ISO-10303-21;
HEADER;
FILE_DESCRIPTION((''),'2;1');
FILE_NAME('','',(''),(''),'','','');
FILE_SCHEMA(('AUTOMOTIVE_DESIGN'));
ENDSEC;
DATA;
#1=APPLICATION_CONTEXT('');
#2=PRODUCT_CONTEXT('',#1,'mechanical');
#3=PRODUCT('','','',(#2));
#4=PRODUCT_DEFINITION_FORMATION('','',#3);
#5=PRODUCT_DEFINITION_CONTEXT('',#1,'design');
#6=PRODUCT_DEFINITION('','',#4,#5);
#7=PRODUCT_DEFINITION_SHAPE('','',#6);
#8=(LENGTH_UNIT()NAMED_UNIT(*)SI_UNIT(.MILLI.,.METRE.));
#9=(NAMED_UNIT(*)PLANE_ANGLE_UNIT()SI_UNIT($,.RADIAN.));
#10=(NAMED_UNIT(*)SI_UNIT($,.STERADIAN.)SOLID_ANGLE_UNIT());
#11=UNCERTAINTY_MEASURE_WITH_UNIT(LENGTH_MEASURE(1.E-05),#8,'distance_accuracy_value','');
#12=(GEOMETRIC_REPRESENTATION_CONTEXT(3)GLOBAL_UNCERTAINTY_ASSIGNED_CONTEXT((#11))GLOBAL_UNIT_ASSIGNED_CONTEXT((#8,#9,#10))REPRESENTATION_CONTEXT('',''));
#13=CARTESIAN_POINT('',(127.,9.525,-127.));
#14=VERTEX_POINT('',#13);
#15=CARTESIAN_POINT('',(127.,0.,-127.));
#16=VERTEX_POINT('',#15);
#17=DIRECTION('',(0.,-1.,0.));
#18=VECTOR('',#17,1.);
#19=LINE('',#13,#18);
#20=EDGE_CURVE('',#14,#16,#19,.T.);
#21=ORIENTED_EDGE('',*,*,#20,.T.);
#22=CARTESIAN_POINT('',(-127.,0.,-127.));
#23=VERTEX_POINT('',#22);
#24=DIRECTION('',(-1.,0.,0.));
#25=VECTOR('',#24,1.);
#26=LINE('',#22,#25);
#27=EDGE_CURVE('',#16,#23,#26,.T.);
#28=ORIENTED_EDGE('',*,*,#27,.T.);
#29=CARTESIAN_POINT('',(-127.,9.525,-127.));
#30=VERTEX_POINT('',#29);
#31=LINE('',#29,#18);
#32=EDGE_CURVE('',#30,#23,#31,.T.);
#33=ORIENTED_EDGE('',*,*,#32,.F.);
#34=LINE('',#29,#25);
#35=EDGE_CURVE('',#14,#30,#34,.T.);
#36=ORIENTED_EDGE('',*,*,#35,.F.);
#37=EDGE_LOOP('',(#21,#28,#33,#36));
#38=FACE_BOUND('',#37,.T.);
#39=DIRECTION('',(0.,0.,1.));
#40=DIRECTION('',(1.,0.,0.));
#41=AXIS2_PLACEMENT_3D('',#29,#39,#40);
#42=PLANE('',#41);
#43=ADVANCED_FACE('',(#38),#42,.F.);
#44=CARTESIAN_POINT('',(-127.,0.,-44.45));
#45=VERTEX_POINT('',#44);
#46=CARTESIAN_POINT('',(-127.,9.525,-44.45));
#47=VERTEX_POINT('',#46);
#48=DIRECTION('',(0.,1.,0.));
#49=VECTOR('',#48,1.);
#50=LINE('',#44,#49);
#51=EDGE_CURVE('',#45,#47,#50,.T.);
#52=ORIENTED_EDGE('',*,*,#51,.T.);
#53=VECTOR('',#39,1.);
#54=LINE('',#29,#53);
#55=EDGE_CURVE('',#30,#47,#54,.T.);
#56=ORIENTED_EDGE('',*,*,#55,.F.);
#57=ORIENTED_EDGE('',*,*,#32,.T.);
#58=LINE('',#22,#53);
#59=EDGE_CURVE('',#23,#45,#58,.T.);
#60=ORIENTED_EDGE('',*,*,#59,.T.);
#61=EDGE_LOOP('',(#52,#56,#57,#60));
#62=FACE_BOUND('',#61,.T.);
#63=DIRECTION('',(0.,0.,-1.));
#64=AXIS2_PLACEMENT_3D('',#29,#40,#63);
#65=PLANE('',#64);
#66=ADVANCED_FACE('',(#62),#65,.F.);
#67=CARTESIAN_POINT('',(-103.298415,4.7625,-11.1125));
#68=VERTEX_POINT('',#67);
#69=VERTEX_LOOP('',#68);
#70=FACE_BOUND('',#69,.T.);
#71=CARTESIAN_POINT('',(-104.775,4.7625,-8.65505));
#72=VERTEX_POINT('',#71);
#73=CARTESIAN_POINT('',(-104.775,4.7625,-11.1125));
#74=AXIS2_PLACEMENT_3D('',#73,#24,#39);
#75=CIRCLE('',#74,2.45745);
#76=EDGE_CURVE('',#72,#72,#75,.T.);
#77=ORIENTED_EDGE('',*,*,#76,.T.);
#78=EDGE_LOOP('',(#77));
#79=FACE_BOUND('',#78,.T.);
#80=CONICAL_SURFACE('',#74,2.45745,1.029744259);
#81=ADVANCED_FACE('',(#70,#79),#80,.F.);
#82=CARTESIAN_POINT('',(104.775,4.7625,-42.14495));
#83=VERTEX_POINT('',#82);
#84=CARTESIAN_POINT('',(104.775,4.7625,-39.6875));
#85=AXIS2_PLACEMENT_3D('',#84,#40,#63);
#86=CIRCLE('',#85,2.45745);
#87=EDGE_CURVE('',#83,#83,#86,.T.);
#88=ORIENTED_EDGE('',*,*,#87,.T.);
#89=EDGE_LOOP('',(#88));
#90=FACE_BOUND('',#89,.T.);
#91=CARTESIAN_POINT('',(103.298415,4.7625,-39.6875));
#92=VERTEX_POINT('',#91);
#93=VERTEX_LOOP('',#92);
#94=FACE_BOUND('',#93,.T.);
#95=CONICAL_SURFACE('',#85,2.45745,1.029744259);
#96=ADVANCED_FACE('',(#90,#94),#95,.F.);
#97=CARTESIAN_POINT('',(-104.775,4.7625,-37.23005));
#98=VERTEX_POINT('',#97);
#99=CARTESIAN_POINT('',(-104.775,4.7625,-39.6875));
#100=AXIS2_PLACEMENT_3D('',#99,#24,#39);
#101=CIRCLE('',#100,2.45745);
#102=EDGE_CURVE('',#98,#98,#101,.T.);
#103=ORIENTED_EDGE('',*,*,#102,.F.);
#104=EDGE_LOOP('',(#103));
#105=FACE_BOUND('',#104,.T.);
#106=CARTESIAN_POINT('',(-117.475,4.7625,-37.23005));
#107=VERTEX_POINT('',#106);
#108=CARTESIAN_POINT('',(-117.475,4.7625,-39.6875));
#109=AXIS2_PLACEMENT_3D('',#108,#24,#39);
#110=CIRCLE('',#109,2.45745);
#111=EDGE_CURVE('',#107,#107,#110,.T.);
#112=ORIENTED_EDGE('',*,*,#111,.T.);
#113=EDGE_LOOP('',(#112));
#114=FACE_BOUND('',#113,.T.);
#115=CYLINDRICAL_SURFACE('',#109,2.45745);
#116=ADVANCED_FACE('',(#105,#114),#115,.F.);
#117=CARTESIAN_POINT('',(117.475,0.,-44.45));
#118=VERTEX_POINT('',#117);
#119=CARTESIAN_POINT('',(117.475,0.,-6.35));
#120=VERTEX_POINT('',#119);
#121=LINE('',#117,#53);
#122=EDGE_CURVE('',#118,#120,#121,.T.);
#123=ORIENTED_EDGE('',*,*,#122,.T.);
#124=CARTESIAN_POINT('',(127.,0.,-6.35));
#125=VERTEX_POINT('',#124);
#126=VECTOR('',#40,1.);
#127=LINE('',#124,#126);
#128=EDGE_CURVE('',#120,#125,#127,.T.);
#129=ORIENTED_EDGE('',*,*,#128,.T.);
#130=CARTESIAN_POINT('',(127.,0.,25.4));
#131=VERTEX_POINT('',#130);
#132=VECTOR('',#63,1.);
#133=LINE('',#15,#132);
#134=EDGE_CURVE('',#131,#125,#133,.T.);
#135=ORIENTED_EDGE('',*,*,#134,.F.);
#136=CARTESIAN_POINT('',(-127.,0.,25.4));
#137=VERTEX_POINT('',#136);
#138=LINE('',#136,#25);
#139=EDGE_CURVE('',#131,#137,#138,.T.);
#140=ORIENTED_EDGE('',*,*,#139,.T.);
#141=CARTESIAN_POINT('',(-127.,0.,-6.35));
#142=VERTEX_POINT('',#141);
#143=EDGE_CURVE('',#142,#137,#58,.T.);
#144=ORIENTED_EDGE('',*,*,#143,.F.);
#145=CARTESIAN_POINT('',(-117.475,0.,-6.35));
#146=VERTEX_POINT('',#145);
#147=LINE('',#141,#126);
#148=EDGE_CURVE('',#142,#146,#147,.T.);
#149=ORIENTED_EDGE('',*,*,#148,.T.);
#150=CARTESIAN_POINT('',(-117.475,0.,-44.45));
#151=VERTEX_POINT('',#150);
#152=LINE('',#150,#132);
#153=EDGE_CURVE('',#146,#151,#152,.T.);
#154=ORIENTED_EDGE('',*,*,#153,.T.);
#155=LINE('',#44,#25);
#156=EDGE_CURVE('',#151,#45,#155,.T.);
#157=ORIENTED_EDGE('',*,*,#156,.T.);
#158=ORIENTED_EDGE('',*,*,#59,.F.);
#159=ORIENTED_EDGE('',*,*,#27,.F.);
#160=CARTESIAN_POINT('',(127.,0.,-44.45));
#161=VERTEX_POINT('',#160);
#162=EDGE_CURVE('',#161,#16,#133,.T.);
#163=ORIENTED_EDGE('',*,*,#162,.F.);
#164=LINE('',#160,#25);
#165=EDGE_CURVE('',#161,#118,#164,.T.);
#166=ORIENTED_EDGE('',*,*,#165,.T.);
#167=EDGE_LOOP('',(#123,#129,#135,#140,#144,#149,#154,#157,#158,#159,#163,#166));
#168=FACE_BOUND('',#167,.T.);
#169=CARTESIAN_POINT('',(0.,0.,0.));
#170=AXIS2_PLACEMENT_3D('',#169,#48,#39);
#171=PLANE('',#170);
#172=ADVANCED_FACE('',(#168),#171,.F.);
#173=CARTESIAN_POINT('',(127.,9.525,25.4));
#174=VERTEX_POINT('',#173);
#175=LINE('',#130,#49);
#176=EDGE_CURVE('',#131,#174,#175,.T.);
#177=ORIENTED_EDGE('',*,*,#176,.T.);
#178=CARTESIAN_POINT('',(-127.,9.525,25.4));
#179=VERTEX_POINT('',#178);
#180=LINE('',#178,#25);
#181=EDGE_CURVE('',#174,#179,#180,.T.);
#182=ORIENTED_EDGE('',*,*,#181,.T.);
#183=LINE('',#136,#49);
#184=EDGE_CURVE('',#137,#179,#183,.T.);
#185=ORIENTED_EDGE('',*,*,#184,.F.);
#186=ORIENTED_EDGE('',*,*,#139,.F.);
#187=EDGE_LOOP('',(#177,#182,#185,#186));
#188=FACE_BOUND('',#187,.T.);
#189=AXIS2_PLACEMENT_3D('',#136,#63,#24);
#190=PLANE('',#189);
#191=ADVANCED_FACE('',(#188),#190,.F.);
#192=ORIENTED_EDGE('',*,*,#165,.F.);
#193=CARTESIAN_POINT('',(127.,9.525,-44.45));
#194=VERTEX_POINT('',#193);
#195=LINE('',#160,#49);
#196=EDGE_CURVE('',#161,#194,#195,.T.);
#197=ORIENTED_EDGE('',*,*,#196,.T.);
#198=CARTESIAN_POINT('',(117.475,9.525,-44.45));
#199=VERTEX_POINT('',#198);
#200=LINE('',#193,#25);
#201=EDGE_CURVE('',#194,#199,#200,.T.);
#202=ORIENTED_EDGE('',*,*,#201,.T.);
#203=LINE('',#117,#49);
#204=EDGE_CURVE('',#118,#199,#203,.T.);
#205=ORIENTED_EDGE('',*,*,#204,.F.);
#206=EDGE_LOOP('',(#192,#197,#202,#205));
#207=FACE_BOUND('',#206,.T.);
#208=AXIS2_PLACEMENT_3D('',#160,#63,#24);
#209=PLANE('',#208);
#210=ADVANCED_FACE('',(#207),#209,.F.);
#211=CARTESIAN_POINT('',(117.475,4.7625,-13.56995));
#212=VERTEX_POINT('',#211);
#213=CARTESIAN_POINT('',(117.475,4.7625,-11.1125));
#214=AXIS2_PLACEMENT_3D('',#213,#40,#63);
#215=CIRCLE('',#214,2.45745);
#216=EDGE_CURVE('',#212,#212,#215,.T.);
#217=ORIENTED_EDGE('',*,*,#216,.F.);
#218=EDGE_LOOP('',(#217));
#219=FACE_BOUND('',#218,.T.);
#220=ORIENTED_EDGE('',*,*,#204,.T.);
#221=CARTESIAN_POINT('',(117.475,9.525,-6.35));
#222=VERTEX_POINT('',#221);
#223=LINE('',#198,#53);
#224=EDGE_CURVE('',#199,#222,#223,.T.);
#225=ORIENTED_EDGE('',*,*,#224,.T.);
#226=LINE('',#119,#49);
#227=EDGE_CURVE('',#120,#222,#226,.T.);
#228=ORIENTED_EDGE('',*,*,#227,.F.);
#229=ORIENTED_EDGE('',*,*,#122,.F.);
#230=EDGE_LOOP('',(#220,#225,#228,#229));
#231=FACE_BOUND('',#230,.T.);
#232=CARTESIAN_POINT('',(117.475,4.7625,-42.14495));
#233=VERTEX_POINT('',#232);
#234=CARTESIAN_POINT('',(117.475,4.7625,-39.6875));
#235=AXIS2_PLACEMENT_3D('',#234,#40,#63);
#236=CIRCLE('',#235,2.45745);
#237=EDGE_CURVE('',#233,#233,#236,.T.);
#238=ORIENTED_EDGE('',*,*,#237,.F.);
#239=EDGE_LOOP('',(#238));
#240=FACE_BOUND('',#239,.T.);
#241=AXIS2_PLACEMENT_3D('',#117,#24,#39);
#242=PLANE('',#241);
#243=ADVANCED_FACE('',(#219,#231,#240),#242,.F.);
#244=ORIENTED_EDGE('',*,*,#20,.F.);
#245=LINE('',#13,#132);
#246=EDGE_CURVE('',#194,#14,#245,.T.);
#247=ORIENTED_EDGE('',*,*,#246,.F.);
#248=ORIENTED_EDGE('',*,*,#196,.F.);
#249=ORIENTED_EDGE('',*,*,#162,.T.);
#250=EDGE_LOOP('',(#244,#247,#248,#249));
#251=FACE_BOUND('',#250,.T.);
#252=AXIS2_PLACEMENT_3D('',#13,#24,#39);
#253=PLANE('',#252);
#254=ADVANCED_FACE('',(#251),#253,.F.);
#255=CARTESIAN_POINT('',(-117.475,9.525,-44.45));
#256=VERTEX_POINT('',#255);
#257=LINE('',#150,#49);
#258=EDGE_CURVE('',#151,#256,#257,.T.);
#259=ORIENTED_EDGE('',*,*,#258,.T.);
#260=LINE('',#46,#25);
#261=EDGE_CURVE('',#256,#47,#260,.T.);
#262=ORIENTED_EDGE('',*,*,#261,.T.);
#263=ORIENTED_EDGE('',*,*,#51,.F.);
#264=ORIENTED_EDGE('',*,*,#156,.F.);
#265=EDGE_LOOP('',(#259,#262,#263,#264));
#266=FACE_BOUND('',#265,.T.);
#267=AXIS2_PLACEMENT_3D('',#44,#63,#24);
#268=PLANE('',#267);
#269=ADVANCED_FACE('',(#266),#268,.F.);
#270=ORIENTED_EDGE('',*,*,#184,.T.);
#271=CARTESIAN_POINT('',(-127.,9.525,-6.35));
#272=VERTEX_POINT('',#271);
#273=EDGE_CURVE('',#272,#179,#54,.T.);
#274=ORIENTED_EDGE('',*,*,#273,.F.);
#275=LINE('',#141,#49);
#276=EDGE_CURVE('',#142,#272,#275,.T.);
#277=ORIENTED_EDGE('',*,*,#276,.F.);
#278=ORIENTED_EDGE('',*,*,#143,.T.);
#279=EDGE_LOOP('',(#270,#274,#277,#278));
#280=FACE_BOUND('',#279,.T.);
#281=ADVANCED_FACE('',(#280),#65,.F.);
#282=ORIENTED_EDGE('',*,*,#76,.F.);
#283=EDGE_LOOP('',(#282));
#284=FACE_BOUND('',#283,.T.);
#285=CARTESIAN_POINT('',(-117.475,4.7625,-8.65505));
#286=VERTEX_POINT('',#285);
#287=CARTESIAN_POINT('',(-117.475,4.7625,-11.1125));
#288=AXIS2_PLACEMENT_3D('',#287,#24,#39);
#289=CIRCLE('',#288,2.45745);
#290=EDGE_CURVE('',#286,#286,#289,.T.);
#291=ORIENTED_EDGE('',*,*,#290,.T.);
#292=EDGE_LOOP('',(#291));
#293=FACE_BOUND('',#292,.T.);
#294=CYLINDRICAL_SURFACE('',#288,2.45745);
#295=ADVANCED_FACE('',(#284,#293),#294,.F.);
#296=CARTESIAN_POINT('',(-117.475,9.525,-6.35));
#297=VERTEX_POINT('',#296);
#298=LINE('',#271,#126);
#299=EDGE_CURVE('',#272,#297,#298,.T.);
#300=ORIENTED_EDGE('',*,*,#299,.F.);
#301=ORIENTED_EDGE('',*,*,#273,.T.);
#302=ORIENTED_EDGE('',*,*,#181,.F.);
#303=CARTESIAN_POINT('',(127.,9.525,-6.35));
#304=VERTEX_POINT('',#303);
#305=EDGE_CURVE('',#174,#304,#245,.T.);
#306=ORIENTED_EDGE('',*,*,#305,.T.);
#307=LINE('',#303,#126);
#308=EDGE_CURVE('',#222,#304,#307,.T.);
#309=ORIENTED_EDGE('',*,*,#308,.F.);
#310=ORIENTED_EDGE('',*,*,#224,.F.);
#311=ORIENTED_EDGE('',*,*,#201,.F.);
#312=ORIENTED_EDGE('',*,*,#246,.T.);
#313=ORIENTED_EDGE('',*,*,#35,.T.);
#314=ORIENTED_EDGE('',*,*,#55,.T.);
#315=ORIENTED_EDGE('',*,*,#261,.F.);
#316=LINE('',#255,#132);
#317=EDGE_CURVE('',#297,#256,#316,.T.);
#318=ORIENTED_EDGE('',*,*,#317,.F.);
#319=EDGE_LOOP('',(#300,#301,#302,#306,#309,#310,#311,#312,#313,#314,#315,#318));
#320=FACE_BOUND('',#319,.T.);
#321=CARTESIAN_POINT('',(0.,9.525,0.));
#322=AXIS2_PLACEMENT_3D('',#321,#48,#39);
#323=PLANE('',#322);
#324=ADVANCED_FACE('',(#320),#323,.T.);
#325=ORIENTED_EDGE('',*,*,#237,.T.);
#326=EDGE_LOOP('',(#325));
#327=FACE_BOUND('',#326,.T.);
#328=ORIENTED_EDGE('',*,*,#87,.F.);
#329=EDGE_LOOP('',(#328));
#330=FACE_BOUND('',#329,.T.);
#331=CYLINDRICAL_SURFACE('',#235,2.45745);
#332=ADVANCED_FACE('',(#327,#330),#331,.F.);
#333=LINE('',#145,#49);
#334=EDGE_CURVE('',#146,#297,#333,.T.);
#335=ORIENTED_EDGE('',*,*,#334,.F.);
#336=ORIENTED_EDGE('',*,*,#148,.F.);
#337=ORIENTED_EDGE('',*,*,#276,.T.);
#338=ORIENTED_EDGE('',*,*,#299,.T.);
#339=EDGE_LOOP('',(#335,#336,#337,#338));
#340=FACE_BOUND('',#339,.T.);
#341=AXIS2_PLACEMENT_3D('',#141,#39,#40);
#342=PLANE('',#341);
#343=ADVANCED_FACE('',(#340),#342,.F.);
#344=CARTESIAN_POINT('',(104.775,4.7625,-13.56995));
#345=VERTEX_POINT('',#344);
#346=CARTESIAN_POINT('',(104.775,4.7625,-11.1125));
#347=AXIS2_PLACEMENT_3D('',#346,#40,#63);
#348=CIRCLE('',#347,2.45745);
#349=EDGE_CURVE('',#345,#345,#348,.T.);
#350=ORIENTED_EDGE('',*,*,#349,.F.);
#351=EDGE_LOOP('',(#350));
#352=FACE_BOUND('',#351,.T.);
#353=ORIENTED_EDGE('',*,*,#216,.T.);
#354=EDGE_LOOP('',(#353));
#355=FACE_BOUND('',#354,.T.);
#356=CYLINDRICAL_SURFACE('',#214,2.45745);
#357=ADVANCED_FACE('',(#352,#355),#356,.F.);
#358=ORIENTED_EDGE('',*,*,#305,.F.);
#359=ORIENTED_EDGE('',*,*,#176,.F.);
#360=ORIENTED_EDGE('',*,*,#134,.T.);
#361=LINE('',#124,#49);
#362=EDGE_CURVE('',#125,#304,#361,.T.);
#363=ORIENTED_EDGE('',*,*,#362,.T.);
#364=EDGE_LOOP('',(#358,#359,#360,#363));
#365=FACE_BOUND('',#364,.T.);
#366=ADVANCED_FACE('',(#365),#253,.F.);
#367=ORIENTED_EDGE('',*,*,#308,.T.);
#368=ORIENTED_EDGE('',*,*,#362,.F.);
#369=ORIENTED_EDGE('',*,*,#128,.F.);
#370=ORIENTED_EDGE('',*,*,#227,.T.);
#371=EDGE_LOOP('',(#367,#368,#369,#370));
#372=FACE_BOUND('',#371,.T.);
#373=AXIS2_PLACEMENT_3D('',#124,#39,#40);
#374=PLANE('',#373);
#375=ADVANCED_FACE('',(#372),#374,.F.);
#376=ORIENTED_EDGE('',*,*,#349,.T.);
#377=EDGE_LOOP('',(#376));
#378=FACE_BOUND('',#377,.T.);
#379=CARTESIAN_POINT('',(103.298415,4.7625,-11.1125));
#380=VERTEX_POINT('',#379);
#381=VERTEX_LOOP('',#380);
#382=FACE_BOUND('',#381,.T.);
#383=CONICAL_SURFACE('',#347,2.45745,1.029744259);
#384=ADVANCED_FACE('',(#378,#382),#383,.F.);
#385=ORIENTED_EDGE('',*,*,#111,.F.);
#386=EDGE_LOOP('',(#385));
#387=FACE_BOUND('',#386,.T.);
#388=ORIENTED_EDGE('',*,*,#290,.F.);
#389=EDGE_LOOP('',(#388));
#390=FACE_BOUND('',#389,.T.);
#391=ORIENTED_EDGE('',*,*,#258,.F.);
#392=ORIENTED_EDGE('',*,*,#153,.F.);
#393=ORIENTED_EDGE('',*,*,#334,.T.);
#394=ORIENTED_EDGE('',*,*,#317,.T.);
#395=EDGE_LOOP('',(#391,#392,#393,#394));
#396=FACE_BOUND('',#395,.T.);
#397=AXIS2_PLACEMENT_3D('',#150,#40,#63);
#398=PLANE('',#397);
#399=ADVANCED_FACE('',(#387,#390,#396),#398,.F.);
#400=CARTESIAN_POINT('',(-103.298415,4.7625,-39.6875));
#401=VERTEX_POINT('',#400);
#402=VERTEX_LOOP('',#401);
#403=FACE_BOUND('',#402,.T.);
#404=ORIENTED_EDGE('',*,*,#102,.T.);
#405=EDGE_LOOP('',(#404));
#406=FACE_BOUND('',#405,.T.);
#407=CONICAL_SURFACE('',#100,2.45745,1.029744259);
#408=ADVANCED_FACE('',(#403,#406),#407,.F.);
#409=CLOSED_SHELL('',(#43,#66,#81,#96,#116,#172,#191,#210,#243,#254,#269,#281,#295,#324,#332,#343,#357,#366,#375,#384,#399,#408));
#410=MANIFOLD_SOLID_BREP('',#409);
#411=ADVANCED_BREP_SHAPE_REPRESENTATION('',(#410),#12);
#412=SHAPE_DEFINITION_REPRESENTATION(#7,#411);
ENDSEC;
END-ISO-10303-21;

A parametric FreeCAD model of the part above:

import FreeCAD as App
import Part
import Sketcher
Q = App.Units.Quantity

doc = App.newDocument("Part")
params = doc.addObject("Spreadsheet::Sheet", "Params")
for row, (alias, value) in enumerate([
    ("sketch1_width", "10 in"),
    ("pad1_length", "0.375 in"),
    ("sketch2_height", "1.5 in"),
    ("sketch2_width", "0.375 in"),
    ("hole_diameter", "0.1935 in"),
    ("hole_depth", "0.5 in"),
    ("hole2_diameter", "0.1935 in"),
    ("hole2_depth", "0.5 in"),
    ("sketch5_width", "10 in"),
    ("sketch5_height", "4 in"),
], start=1):
    params.set(f"A{row}", alias)
    params.set(f"B{row}", "=" + value)
    params.setAlias(f"B{row}", alias)

body = doc.addObject("PartDesign::Body", "Body")

# Sketch on XZ plane
sketch1 = body.newObject("Sketcher::SketchObject", "Sketch")
sketch1.AttachmentSupport = (doc.getObject("XZ_Plane"), [""])
sketch1.MapMode = "FlatFace"
sketch1.addGeometry([
    Part.LineSegment(App.Vector(-127, -127, 0), App.Vector(-127, 127, 0)),
    Part.LineSegment(App.Vector(-127, 127, 0), App.Vector(127, 127, 0)),
    Part.LineSegment(App.Vector(127, 127, 0), App.Vector(127, -127, 0)),
    Part.LineSegment(App.Vector(127, -127, 0), App.Vector(-127, -127, 0)),
], False)
sketch1.addConstraint([
    Sketcher.Constraint("Coincident", 0, 2, 1, 1),
    Sketcher.Constraint("Coincident", 1, 2, 2, 1),
    Sketcher.Constraint("Coincident", 2, 2, 3, 1),
    Sketcher.Constraint("Coincident", 3, 2, 0, 1),
    Sketcher.Constraint("Vertical", 0),
    Sketcher.Constraint("Horizontal", 1),
    Sketcher.Constraint("Vertical", 2),
    Sketcher.Constraint("Horizontal", 3),
    Sketcher.Constraint("Symmetric", 0, 2, 2, 2, -1, 1),
    Sketcher.Constraint("Equal", 3, 0),
    Sketcher.Constraint("DistanceX", 1, 1, 1, 2, Q("10 in")),
])
sketch1.setExpression("Constraints[10]", "Params.sketch1_width")
pad1 = body.newObject("PartDesign::Pad", "Pad")
pad1.Profile = sketch1
pad1.setExpression("Length", "Params.pad1_length")
pad1.Reversed = True

# Sketch on XZ plane
sketch2 = body.newObject("Sketcher::SketchObject", "Sketch001")
sketch2.AttachmentSupport = (doc.getObject("XZ_Plane"), [""])
sketch2.MapMode = "FlatFace"
sketch2.AttachmentOffset = App.Placement(App.Vector(0, 0, -0.375 * 25.4), App.Rotation())
sketch2.addGeometry([
    Part.LineSegment(App.Vector(-127, -44, 0), App.Vector(-127, -6, 0)),  # 0
    Part.LineSegment(App.Vector(-127, -6, 0), App.Vector(-117, -6, 0)),  # 1
    Part.LineSegment(App.Vector(-117, -6, 0), App.Vector(-117, -44, 0)),  # 2
    Part.LineSegment(App.Vector(-117, -44, 0), App.Vector(-127, -44, 0)),  # 3
    Part.LineSegment(App.Vector(117, -44, 0), App.Vector(117, -6, 0)),  # 4
    Part.LineSegment(App.Vector(117, -6, 0), App.Vector(127, -6, 0)),  # 5
    Part.LineSegment(App.Vector(127, -6, 0), App.Vector(127, -44, 0)),  # 6
    Part.LineSegment(App.Vector(127, -44, 0), App.Vector(117, -44, 0)),  # 7
], False)
sketch2.addConstraint([
    Sketcher.Constraint("Coincident", 0, 2, 1, 1),
    Sketcher.Constraint("Coincident", 1, 2, 2, 1),
    Sketcher.Constraint("Coincident", 2, 2, 3, 1),
    Sketcher.Constraint("Coincident", 3, 2, 0, 1),
    Sketcher.Constraint("Coincident", 4, 2, 5, 1),
    Sketcher.Constraint("Coincident", 5, 2, 6, 1),
    Sketcher.Constraint("Coincident", 6, 2, 7, 1),
    Sketcher.Constraint("Coincident", 7, 2, 4, 1),
    Sketcher.Constraint("Vertical", 0),
    Sketcher.Constraint("Horizontal", 1),
    Sketcher.Constraint("Vertical", 2),
    Sketcher.Constraint("Horizontal", 3),
    Sketcher.Constraint("Vertical", 4),
    Sketcher.Constraint("Horizontal", 5),
    Sketcher.Constraint("Vertical", 6),
    Sketcher.Constraint("Horizontal", 7),
    Sketcher.Constraint("Symmetric", 1, 2, 4, 2, -2),
    Sketcher.Constraint("Symmetric", 3, 2, 6, 2, -2),
    Sketcher.Constraint("DistanceY", 0, 1, 0, 2, Q("1.5 in")),
    Sketcher.Constraint("DistanceX", 0, 2, -1, 1, Q("5 in")),
    Sketcher.Constraint("DistanceX", 1, 1, 1, 2, Q("0.375 in")),
    Sketcher.Constraint("DistanceY", 0, 2, -1, 1, Q("0.25 in")),
])
sketch2.setExpression("Constraints[18]", "Params.sketch2_height")
sketch2.setExpression("Constraints[20]", "Params.sketch2_width")
pocket1 = body.newObject("PartDesign::Pocket", "Pocket")
pocket1.Profile = sketch2
pocket1.Type = "ThroughAll"
pocket1.Reversed = True

# Sketch on YZ plane
sketch3 = body.newObject("Sketcher::SketchObject", "Sketch002")
sketch3.AttachmentSupport = (doc.getObject("YZ_Plane"), [""])
sketch3.MapMode = "FlatFace"
sketch3.AttachmentOffset = App.Placement(App.Vector(0, 0, 4.625 * 25.4), App.Rotation())
sketch3.addGeometry([
    Part.Circle(App.Vector(4.8, -11.1, 0), App.Vector(0, 0, 1), 2.5),
    Part.Circle(App.Vector(4.8, -39.7, 0), App.Vector(0, 0, 1), 2.5),
], False)
sketch3.addConstraint([
    Sketcher.Constraint("Equal", 0, 1),
    Sketcher.Constraint("Vertical", 0, 3, 1, 3),
    Sketcher.Constraint("Diameter", 0, Q("0.1935 in")),
    Sketcher.Constraint("DistanceX", -1, 1, 0, 3, Q("0.1875 in")),
    Sketcher.Constraint("DistanceY", 0, 3, -1, 1, Q("0.4375 in")),
    Sketcher.Constraint("DistanceY", 1, 3, -1, 1, Q("1.5625 in")),
])
doc.recompute()
hole = body.newObject("PartDesign::Hole", "Hole")
hole.Profile = sketch3
hole.ThreadType = "None"
hole.setExpression("Diameter", "Params.hole_diameter")
hole.DepthType = "Dimension"
hole.setExpression("Depth", "Params.hole_depth")
hole.DrillPoint = "Angled"
hole.DrillPointAngle = 118

# Sketch on YZ plane
sketch4 = body.newObject("Sketcher::SketchObject", "Sketch003")
sketch4.AttachmentSupport = (doc.getObject("YZ_Plane"), [""])
sketch4.MapMode = "FlatFace"
sketch4.AttachmentOffset = App.Placement(App.Vector(0, 0, -4.625 * 25.4), App.Rotation())
sketch4.addGeometry([
    Part.Circle(App.Vector(4.8, -39.7, 0), App.Vector(0, 0, 1), 2.5),
    Part.Circle(App.Vector(4.8, -11.1, 0), App.Vector(0, 0, 1), 2.5),
], False)
sketch4.addConstraint([
    Sketcher.Constraint("Equal", 0, 1),
    Sketcher.Constraint("Vertical", 0, 3, 1, 3),
    Sketcher.Constraint("Diameter", 0, Q("0.1935 in")),
    Sketcher.Constraint("DistanceX", -1, 1, 0, 3, Q("0.1875 in")),
    Sketcher.Constraint("DistanceY", 0, 3, -1, 1, Q("1.5625 in")),
    Sketcher.Constraint("DistanceY", 1, 3, -1, 1, Q("0.4375 in")),
])
doc.recompute()
hole2 = body.newObject("PartDesign::Hole", "Hole001")
hole2.Profile = sketch4
hole2.ThreadType = "None"
hole2.setExpression("Diameter", "Params.hole2_diameter")
hole2.DepthType = "Dimension"
hole2.setExpression("Depth", "Params.hole2_depth")
hole2.DrillPoint = "Angled"
hole2.DrillPointAngle = 118
hole2.Reversed = True

# Sketch on XZ plane
sketch5 = body.newObject("Sketcher::SketchObject", "Sketch004")
sketch5.AttachmentSupport = (doc.getObject("XZ_Plane"), [""])
sketch5.MapMode = "FlatFace"
sketch5.AttachmentOffset = App.Placement(App.Vector(0, 0, -0.375 * 25.4), App.Rotation())
sketch5.addGeometry([
    Part.LineSegment(App.Vector(-127, 25, 0), App.Vector(-127, 127, 0)),
    Part.LineSegment(App.Vector(-127, 127, 0), App.Vector(127, 127, 0)),
    Part.LineSegment(App.Vector(127, 127, 0), App.Vector(127, 25, 0)),
    Part.LineSegment(App.Vector(127, 25, 0), App.Vector(-127, 25, 0)),
], False)
sketch5.addConstraint([
    Sketcher.Constraint("Coincident", 0, 2, 1, 1),
    Sketcher.Constraint("Coincident", 1, 2, 2, 1),
    Sketcher.Constraint("Coincident", 2, 2, 3, 1),
    Sketcher.Constraint("Coincident", 3, 2, 0, 1),
    Sketcher.Constraint("Vertical", 0),
    Sketcher.Constraint("Horizontal", 1),
    Sketcher.Constraint("Vertical", 2),
    Sketcher.Constraint("Horizontal", 3),
    Sketcher.Constraint("DistanceX", 1, 1, 1, 2, Q("10 in")),
    Sketcher.Constraint("DistanceY", 0, 1, 0, 2, Q("4 in")),
    Sketcher.Constraint("DistanceX", 0, 2, -1, 1, Q("5 in")),
    Sketcher.Constraint("DistanceY", -1, 1, 0, 2, Q("5 in")),
])
sketch5.setExpression("Constraints[8]", "Params.sketch5_width")
sketch5.setExpression("Constraints[9]", "Params.sketch5_height")
pocket2 = body.newObject("PartDesign::Pocket", "Pocket001")
pocket2.Profile = sketch5
pocket2.Type = "ThroughAll"
pocket2.Reversed = True

doc.recompute()
